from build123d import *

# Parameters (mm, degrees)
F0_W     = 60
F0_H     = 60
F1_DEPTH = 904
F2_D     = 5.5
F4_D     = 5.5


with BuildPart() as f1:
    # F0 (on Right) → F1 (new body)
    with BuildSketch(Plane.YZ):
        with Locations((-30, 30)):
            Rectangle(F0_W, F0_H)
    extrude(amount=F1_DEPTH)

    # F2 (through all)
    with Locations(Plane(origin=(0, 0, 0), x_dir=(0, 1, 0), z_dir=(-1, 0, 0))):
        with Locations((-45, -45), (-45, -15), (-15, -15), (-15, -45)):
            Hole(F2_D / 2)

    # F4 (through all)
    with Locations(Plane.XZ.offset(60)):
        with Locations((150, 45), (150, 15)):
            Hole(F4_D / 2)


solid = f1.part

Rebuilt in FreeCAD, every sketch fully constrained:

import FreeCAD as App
import Part
import Sketcher

V = App.Vector


def add_polygon(sketch, points):
    """Adds a closed chain of lines whose ends are joined by coincident constraints."""
    first, n = sketch.GeometryCount, len(points)
    for a, b in zip(points, points[1:] + points[:1]):
        sketch.addGeometry(Part.LineSegment(App.Vector(*a, 0), App.Vector(*b, 0)), False)
    for i in range(n):
        sketch.addConstraint(Sketcher.Constraint("Coincident", first + i, 2, first + (i + 1) % n, 1))

doc = App.newDocument("Part")
body = doc.addObject("PartDesign::Body", "Body")

# Sketch on YZ plane
sketch1 = body.newObject("Sketcher::SketchObject", "Sketch")
sketch1.AttachmentSupport = (doc.getObject("YZ_Plane"), [""])
sketch1.MapMode = "FlatFace"
add_polygon(sketch1, [(-60, 60), (-60, 0), (0, 0), (0, 60)])  # lines 0-3
sketch1.addConstraint([
    Sketcher.Constraint("Vertical", 0),
    Sketcher.Constraint("Horizontal", 1),
    Sketcher.Constraint("Vertical", 2),
    Sketcher.Constraint("Horizontal", 3),
    Sketcher.Constraint("Coincident", 1, 2, -1, 1),
    Sketcher.Constraint("Equal", 3, 0),
    Sketcher.Constraint("DistanceX", 1, 1, 1, 2, 60.0),
])
pad1 = body.newObject("PartDesign::Pad", "Pad")
pad1.Profile = sketch1
pad1.Length = 904

# Sketch on YZ plane
sketch2 = body.newObject("Sketcher::SketchObject", "Sketch001")
sketch2.AttachmentSupport = (doc.getObject("YZ_Plane"), [""])
sketch2.MapMode = "FlatFace"
sketch2.addGeometry([
    Part.Circle(V(-45, 45, 0), V(0, 0, 1), 2.8),
    Part.Circle(V(-45, 15, 0), V(0, 0, 1), 2.8),
    Part.Circle(V(-15, 15, 0), V(0, 0, 1), 2.8),
    Part.Circle(V(-15, 45, 0), V(0, 0, 1), 2.8),
], False)
sketch2.addConstraint([
    Sketcher.Constraint("Equal", 0, 1),
    Sketcher.Constraint("Equal", 1, 2),
    Sketcher.Constraint("Equal", 2, 3),
    Sketcher.Constraint("Horizontal", 1, 3, 2, 3),
    Sketcher.Constraint("Horizontal", 0, 3, 3, 3),
    Sketcher.Constraint("Vertical", 0, 3, 1, 3),
    Sketcher.Constraint("Vertical", 2, 3, 3, 3),
    Sketcher.Constraint("Diameter", 0, 5.5),
    Sketcher.Constraint("DistanceX", 0, 3, -1, 1, 45.0),
    Sketcher.Constraint("DistanceY", -1, 1, 0, 3, 45.0),
    Sketcher.Constraint("DistanceY", -1, 1, 1, 3, 15.0),
    Sketcher.Constraint("DistanceX", 2, 3, -1, 1, 15.0),
])
doc.recompute()
hole = body.newObject("PartDesign::Hole", "Hole")
hole.Profile = sketch2
hole.ThreadType = "None"
hole.Diameter = 5.5
hole.DepthType = "ThroughAll"
hole.Reversed = True

# Sketch on XZ plane
sketch3 = body.newObject("Sketcher::SketchObject", "Sketch002")
sketch3.AttachmentSupport = (doc.getObject("XZ_Plane"), [""])
sketch3.MapMode = "FlatFace"
sketch3.AttachmentOffset = App.Placement(V(0, 0, 60), App.Rotation())
sketch3.addGeometry([
    Part.Circle(V(150, 45, 0), V(0, 0, 1), 2.8),
    Part.Circle(V(150, 15, 0), V(0, 0, 1), 2.8),
], False)
sketch3.addConstraint([
    Sketcher.Constraint("Equal", 0, 1),
    Sketcher.Constraint("Vertical", 0, 3, 1, 3),
    Sketcher.Constraint("Diameter", 0, 5.5),
    Sketcher.Constraint("DistanceX", -1, 1, 0, 3, 150.0),
    Sketcher.Constraint("DistanceY", -1, 1, 0, 3, 45.0),
    Sketcher.Constraint("DistanceY", -1, 1, 1, 3, 15.0),
])
doc.recompute()
hole2 = body.newObject("PartDesign::Hole", "Hole001")
hole2.Profile = sketch3
hole2.ThreadType = "None"
hole2.Diameter = 5.5
hole2.DepthType = "ThroughAll"

doc.recompute()
